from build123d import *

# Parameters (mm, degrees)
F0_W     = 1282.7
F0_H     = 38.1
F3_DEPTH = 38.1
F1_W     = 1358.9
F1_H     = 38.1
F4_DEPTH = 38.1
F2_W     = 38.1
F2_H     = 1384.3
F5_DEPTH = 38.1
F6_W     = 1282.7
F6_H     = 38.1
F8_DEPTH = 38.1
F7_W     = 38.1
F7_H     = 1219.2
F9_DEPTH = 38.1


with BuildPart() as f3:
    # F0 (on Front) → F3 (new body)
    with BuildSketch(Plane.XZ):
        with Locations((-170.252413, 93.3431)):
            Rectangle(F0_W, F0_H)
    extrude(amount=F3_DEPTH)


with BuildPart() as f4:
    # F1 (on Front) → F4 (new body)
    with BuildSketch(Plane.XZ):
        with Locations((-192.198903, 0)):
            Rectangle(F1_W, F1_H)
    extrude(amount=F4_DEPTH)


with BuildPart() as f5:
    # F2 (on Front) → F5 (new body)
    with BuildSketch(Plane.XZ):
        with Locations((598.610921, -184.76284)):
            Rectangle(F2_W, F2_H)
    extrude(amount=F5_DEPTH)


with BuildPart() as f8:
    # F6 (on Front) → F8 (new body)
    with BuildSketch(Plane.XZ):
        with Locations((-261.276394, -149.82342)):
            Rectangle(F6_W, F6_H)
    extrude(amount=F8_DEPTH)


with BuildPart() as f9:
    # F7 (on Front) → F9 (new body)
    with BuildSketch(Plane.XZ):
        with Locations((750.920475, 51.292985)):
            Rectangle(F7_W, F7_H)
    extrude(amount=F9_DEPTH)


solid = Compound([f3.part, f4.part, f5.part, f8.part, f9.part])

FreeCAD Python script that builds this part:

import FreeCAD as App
import Part
import Sketcher
Q = App.Units.Quantity

doc = App.newDocument("Part")
body = doc.addObject("PartDesign::Body", "Body")

# Sketch on XZ plane
sketch1 = doc.addObject("Sketcher::SketchObject", "Sketch")
body.addObject(sketch1)
sketch1.AttachmentSupport = (doc.XZ_Plane, [""])
sketch1.MapMode = "FlatFace"
sketch1.addGeometry([
    Part.LineSegment(App.Vector(-812, 112, 0), App.Vector(-812, 74, 0)),
    Part.LineSegment(App.Vector(-812, 74, 0), App.Vector(471, 74, 0)),
    Part.LineSegment(App.Vector(471, 74, 0), App.Vector(471, 112, 0)),
    Part.LineSegment(App.Vector(471, 112, 0), App.Vector(-812, 112, 0)),
], False)
sketch1.addConstraint([
    Sketcher.Constraint("Coincident", 0, 2, 1, 1),
    Sketcher.Constraint("Coincident", 1, 2, 2, 1),
    Sketcher.Constraint("Coincident", 2, 2, 3, 1),
    Sketcher.Constraint("Coincident", 3, 2, 0, 1),
    Sketcher.Constraint("Vertical", 0),
    Sketcher.Constraint("Horizontal", 1),
    Sketcher.Constraint("Vertical", 2),
    Sketcher.Constraint("Horizontal", 3),
    Sketcher.Constraint("DistanceX", 1, 1, 1, 2, Q("50.5 in")),
    Sketcher.Constraint("DistanceY", 0, 2, 0, 1, Q("1.5 in")),
    Sketcher.Constraint("DistanceY", -1, 1, 0, 2, 74.2931),
    Sketcher.Constraint("DistanceX", 0, 2, -1, 1, 811.602413),
])
pad1 = doc.addObject("PartDesign::Pad", "Pad")
body.addObject(pad1)
pad1.Profile = sketch1
pad1.Length = Q("1.5 in")
body2 = doc.addObject("PartDesign::Body", "Body001")

# Sketch on XZ plane
sketch2 = doc.addObject("Sketcher::SketchObject", "Sketch001")
body2.addObject(sketch2)
sketch2.AttachmentSupport = (doc.getObject("XZ_Plane001"), [""])
sketch2.MapMode = "FlatFace"
sketch2.addGeometry([
    Part.LineSegment(App.Vector(-872, 19, 0), App.Vector(-872, -19, 0)),
    Part.LineSegment(App.Vector(-872, -19, 0), App.Vector(487, -19, 0)),
    Part.LineSegment(App.Vector(487, -19, 0), App.Vector(487, 19, 0)),
    Part.LineSegment(App.Vector(487, 19, 0), App.Vector(-872, 19, 0)),
], False)
sketch2.addConstraint([
    Sketcher.Constraint("Coincident", 0, 2, 1, 1),
    Sketcher.Constraint("Coincident", 1, 2, 2, 1),
    Sketcher.Constraint("Coincident", 2, 2, 3, 1),
    Sketcher.Constraint("Coincident", 3, 2, 0, 1),
    Sketcher.Constraint("Vertical", 0),
    Sketcher.Constraint("Horizontal", 1),
    Sketcher.Constraint("Vertical", 2),
    Sketcher.Constraint("Horizontal", 3),
    Sketcher.Constraint("DistanceX", 1, 1, 1, 2, Q("53.5 in")),
    Sketcher.Constraint("DistanceY", 0, 2, 0, 1, Q("1.5 in")),
    Sketcher.Constraint("DistanceY", 0, 2, -1, 1, Q("0.75 in")),
    Sketcher.Constraint("DistanceX", 0, 2, -1, 1, 871.648903),
])
pad2 = doc.addObject("PartDesign::Pad", "Pad001")
body2.addObject(pad2)
pad2.Profile = sketch2
pad2.Length = Q("1.5 in")
body3 = doc.addObject("PartDesign::Body", "Body002")

# Sketch on XZ plane
sketch3 = doc.addObject("Sketcher::SketchObject", "Sketch002")
body3.addObject(sketch3)
sketch3.AttachmentSupport = (doc.getObject("XZ_Plane002"), [""])
sketch3.MapMode = "FlatFace"
sketch3.addGeometry([
    Part.LineSegment(App.Vector(580, 507, 0), App.Vector(580, -877, 0)),
    Part.LineSegment(App.Vector(580, -877, 0), App.Vector(618, -877, 0)),
    Part.LineSegment(App.Vector(618, -877, 0), App.Vector(618, 507, 0)),
    Part.LineSegment(App.Vector(618, 507, 0), App.Vector(580, 507, 0)),
], False)
sketch3.addConstraint([
    Sketcher.Constraint("Coincident", 0, 2, 1, 1),
    Sketcher.Constraint("Coincident", 1, 2, 2, 1),
    Sketcher.Constraint("Coincident", 2, 2, 3, 1),
    Sketcher.Constraint("Coincident", 3, 2, 0, 1),
    Sketcher.Constraint("Vertical", 0),
    Sketcher.Constraint("Horizontal", 1),
    Sketcher.Constraint("Vertical", 2),
    Sketcher.Constraint("Horizontal", 3),
    Sketcher.Constraint("DistanceX", 1, 1, 1, 2, Q("1.5 in")),
    Sketcher.Constraint("DistanceY", 0, 2, 0, 1, Q("54.5 in")),
    Sketcher.Constraint("DistanceX", -1, 1, 0, 2, 579.560921),
    Sketcher.Constraint("DistanceY", 0, 2, -1, 1, 876.91284),
])
pad3 = doc.addObject("PartDesign::Pad", "Pad002")
body3.addObject(pad3)
pad3.Profile = sketch3
pad3.Length = Q("1.5 in")
body4 = doc.addObject("PartDesign::Body", "Body003")

# Sketch on XZ plane
sketch4 = doc.addObject("Sketcher::SketchObject", "Sketch003")
body4.addObject(sketch4)
sketch4.AttachmentSupport = (doc.getObject("XZ_Plane003"), [""])
sketch4.MapMode = "FlatFace"
sketch4.addGeometry([
    Part.LineSegment(App.Vector(-903, -131, 0), App.Vector(-903, -169, 0)),
    Part.LineSegment(App.Vector(-903, -169, 0), App.Vector(380, -169, 0)),
    Part.LineSegment(App.Vector(380, -169, 0), App.Vector(380, -131, 0)),
    Part.LineSegment(App.Vector(380, -131, 0), App.Vector(-903, -131, 0)),
], False)
sketch4.addConstraint([
    Sketcher.Constraint("Coincident", 0, 2, 1, 1),
    Sketcher.Constraint("Coincident", 1, 2, 2, 1),
    Sketcher.Constraint("Coincident", 2, 2, 3, 1),
    Sketcher.Constraint("Coincident", 3, 2, 0, 1),
    Sketcher.Constraint("Vertical", 0),
    Sketcher.Constraint("Horizontal", 1),
    Sketcher.Constraint("Vertical", 2),
    Sketcher.Constraint("Horizontal", 3),
    Sketcher.Constraint("DistanceX", 1, 1, 1, 2, Q("50.5 in")),
    Sketcher.Constraint("DistanceY", 0, 2, 0, 1, Q("1.5 in")),
    Sketcher.Constraint("DistanceY", 0, 2, -1, 1, 168.87342),
    Sketcher.Constraint("DistanceX", 0, 2, -1, 1, 902.626394),
])
pad4 = doc.addObject("PartDesign::Pad", "Pad003")
body4.addObject(pad4)
pad4.Profile = sketch4
pad4.Length = Q("1.5 in")
body5 = doc.addObject("PartDesign::Body", "Body004")

# Sketch on XZ plane
sketch5 = doc.addObject("Sketcher::SketchObject", "Sketch004")
body5.addObject(sketch5)
sketch5.AttachmentSupport = (doc.getObject("XZ_Plane004"), [""])
sketch5.MapMode = "FlatFace"
sketch5.addGeometry([
    Part.LineSegment(App.Vector(732, 661, 0), App.Vector(732, -558, 0)),
    Part.LineSegment(App.Vector(732, -558, 0), App.Vector(770, -558, 0)),
    Part.LineSegment(App.Vector(770, -558, 0), App.Vector(770, 661, 0)),
    Part.LineSegment(App.Vector(770, 661, 0), App.Vector(732, 661, 0)),
], False)
sketch5.addConstraint([
    Sketcher.Constraint("Coincident", 0, 2, 1, 1),
    Sketcher.Constraint("Coincident", 1, 2, 2, 1),
    Sketcher.Constraint("Coincident", 2, 2, 3, 1),
    Sketcher.Constraint("Coincident", 3, 2, 0, 1),
    Sketcher.Constraint("Vertical", 0),
    Sketcher.Constraint("Horizontal", 1),
    Sketcher.Constraint("Vertical", 2),
    Sketcher.Constraint("Horizontal", 3),
    Sketcher.Constraint("DistanceY", 0, 2, 0, 1, Q("48 in")),
    Sketcher.Constraint("DistanceX", 1, 1, 1, 2, Q("1.5 in")),
    Sketcher.Constraint("DistanceX", -1, 1, 0, 2, 731.870475),
    Sketcher.Constraint("DistanceY", 0, 2, -1, 1, 558.307015),
])
pad5 = doc.addObject("PartDesign::Pad", "Pad004")
body5.addObject(pad5)
pad5.Profile = sketch5
pad5.Length = Q("1.5 in")

doc.recompute()
